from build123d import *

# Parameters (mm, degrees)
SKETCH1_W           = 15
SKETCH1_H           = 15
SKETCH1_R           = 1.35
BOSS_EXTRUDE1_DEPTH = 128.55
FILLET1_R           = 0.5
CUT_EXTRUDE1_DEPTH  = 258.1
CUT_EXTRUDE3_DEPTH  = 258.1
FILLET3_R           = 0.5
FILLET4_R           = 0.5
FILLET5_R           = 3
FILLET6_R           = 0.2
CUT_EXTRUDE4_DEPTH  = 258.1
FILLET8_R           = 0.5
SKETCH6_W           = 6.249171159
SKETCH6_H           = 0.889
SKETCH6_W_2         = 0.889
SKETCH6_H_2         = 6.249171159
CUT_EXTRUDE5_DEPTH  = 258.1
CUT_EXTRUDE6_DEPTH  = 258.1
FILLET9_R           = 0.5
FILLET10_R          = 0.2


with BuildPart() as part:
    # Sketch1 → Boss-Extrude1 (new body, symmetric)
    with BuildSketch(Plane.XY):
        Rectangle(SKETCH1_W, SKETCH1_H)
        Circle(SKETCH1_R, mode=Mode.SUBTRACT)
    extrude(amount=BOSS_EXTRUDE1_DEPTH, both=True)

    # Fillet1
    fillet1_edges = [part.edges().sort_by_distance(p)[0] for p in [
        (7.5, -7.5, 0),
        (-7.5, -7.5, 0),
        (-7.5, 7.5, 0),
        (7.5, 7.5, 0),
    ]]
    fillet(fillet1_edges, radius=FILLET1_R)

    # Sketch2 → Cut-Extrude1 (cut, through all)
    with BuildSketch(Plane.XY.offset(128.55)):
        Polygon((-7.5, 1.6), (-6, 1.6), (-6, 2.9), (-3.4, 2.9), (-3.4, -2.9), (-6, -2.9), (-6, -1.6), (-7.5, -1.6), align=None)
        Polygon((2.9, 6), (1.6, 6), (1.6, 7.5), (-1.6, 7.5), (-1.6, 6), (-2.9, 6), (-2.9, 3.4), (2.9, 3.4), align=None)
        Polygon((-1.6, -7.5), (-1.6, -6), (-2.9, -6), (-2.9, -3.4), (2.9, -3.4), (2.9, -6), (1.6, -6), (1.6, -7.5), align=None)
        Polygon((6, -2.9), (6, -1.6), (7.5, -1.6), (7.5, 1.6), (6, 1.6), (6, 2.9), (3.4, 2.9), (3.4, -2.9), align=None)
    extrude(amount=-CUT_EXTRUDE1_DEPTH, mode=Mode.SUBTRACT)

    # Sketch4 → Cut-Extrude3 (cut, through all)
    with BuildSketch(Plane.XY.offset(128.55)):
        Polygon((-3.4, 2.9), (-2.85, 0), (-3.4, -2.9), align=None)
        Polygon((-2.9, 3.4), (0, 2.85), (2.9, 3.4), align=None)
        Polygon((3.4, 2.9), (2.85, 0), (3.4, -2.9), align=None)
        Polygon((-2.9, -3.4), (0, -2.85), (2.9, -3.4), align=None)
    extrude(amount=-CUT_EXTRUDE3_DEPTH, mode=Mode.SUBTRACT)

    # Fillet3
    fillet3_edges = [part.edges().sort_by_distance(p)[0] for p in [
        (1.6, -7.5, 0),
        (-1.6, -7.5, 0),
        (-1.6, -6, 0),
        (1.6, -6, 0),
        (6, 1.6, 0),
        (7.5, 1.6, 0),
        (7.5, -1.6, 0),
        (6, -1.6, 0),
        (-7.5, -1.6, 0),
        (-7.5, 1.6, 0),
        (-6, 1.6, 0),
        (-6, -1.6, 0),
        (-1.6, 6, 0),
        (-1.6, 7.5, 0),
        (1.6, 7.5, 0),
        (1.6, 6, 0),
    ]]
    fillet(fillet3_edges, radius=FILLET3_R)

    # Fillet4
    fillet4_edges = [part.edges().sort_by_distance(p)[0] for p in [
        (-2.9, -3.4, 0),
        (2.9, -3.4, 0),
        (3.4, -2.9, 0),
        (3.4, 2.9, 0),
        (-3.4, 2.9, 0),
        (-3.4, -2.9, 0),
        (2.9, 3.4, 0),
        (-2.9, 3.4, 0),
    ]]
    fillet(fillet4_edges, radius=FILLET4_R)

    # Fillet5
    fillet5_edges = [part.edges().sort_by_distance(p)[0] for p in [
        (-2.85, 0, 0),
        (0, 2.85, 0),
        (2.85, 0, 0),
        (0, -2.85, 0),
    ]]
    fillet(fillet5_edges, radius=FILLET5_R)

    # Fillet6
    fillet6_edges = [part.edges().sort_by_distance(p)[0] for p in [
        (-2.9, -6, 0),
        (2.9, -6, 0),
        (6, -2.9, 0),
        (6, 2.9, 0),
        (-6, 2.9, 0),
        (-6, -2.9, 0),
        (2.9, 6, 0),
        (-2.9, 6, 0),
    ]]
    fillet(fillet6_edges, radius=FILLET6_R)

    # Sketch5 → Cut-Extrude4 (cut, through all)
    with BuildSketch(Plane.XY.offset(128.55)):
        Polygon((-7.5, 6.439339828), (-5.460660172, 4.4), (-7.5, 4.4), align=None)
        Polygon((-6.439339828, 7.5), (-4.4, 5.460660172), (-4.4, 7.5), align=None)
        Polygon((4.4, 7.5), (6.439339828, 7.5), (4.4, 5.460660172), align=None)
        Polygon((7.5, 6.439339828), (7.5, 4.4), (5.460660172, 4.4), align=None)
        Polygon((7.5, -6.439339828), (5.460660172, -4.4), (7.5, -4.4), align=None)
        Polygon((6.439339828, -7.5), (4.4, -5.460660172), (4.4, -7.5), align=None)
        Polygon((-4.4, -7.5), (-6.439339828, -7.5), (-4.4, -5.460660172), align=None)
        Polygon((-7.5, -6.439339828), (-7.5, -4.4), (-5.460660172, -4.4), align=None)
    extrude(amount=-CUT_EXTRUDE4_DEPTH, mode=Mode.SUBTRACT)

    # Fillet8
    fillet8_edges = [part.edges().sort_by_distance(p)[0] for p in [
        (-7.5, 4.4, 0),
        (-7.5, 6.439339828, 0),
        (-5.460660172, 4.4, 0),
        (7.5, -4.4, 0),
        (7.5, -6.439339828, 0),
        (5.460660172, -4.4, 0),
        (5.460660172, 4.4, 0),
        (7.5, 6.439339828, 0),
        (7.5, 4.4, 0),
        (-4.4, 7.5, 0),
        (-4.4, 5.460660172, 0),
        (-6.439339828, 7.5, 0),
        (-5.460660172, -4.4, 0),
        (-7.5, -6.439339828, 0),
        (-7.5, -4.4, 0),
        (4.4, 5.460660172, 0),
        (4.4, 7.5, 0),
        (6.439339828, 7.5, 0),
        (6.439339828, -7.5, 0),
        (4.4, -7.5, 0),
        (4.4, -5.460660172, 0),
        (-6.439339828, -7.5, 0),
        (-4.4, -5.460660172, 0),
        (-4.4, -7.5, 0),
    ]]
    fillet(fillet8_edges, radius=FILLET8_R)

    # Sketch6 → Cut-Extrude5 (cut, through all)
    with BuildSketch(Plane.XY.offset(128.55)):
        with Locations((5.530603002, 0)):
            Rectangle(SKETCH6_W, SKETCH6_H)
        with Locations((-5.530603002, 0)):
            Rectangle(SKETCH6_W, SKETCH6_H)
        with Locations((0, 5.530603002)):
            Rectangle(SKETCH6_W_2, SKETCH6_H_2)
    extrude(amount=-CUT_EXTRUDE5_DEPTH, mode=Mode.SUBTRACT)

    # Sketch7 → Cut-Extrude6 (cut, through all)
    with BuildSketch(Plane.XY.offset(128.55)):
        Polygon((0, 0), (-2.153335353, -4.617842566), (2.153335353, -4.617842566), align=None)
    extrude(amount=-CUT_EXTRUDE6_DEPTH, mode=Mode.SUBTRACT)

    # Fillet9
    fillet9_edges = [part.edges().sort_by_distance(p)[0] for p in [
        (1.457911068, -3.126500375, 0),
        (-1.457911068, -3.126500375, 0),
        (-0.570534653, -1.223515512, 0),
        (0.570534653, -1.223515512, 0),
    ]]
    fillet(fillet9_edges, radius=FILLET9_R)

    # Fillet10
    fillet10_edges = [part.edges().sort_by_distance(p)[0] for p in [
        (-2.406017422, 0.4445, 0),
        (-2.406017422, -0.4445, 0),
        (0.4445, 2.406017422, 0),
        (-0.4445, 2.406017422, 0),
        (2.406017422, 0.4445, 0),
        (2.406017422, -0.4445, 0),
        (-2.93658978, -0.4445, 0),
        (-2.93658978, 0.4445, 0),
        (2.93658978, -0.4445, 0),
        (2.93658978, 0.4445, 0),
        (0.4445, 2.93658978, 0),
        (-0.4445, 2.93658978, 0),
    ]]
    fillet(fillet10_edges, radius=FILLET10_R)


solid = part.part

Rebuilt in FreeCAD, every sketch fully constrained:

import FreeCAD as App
import Part
import Sketcher

V = App.Vector
Q = App.Units.Quantity


def edges_at(feature, points):
    """Names of the edges that pass closest to the given points."""
    edges = feature.Shape.Edges
    near = lambda p: min(range(len(edges)), key=lambda i: edges[i].distToShape(Part.Vertex(*p))[0])
    return sorted({f"Edge{near(p) + 1}" for p in points})


def add_polygon(sketch, points):
    """Adds a closed chain of lines whose ends are joined by coincident constraints."""
    first, n = sketch.GeometryCount, len(points)
    for a, b in zip(points, points[1:] + points[:1]):
        sketch.addGeometry(Part.LineSegment(App.Vector(*a, 0), App.Vector(*b, 0)), False)
    for i in range(n):
        sketch.addConstraint(Sketcher.Constraint("Coincident", first + i, 2, first + (i + 1) % n, 1))

doc = App.newDocument("Part")
body = doc.addObject("PartDesign::Body", "Body")

# Sketch on XY plane
sketch1 = body.newObject("Sketcher::SketchObject", "Sketch")
sketch1.AttachmentSupport = (doc.getObject("XY_Plane"), [""])
sketch1.MapMode = "FlatFace"
add_polygon(sketch1, [(-7.5, 7.5), (-7.5, -7.5), (7.5, -7.5), (7.5, 7.5)])  # lines 0-3
sketch1.addGeometry(Part.Circle(V(0, 0, 0), V(0, 0, 1), 1.4), False)  # 4
sketch1.addConstraint(Sketcher.Constraint("Vertical", 0))
sketch1.addConstraint(Sketcher.Constraint("Horizontal", 1))
sketch1.addConstraint(Sketcher.Constraint("Vertical", 2))
sketch1.addConstraint(Sketcher.Constraint("Horizontal", 3))
sketch1.addConstraint(Sketcher.Constraint("Coincident", 4, 3, -1, 1))
sketch1.addConstraint(Sketcher.Constraint("Symmetric", 0, 2, 2, 2, -1, 1))
sketch1.addConstraint(Sketcher.Constraint("Equal", 3, 0))
sketch1.addConstraint(Sketcher.Constraint("Diameter", 4, 2.7))
sketch1.addConstraint(Sketcher.Constraint("DistanceX", 1, 1, 1, 2, 15.0))
pad1 = body.newObject("PartDesign::Pad", "Pad")
pad1.Profile = sketch1
pad1.Length = 257.1
pad1.Midplane = True
doc.recompute()

fillet = body.newObject("PartDesign::Fillet", "Fillet")
fillet.Base = (pad1, edges_at(pad1, [
    (7.5, -7.5, 0),
    (-7.5, -7.5, 0),
    (-7.5, 7.5, 0),
    (7.5, 7.5, 0),
]))
fillet.Radius = 0.5

# Sketch on XY plane
sketch2 = body.newObject("Sketcher::SketchObject", "Sketch001")
sketch2.AttachmentSupport = (doc.getObject("XY_Plane"), [""])
sketch2.MapMode = "FlatFace"
sketch2.AttachmentOffset = App.Placement(V(0, 0, 128.55), App.Rotation())
add_polygon(sketch2, [(-6, 1.6), (-7.5, 1.6), (-7.5, -1.6), (-6, -1.6), (-6, -2.9), (-3.4, -2.9), (-3.4, 2.9), (-6, 2.9)])  # lines 0-7
add_polygon(sketch2, [(2.9, 6), (1.6, 6), (1.6, 7.5), (-1.6, 7.5), (-1.6, 6), (-2.9, 6), (-2.9, 3.4), (2.9, 3.4)])  # lines 8-15
add_polygon(sketch2, [(-1.6, -6), (-1.6, -7.5), (1.6, -7.5), (1.6, -6), (2.9, -6), (2.9, -3.4), (-2.9, -3.4), (-2.9, -6)])  # lines 16-23
add_polygon(sketch2, [(6, -2.9), (6, -1.6), (7.5, -1.6), (7.5, 1.6), (6, 1.6), (6, 2.9), (3.4, 2.9), (3.4, -2.9)])  # lines 24-31
sketch2.addConstraint(Sketcher.Constraint("Horizontal", 0))
sketch2.addConstraint(Sketcher.Constraint("Vertical", 1))
sketch2.addConstraint(Sketcher.Constraint("Horizontal", 2))
sketch2.addConstraint(Sketcher.Constraint("Vertical", 3))
sketch2.addConstraint(Sketcher.Constraint("Horizontal", 4))
sketch2.addConstraint(Sketcher.Constraint("Vertical", 5))
sketch2.addConstraint(Sketcher.Constraint("Horizontal", 6))
sketch2.addConstraint(Sketcher.Constraint("Vertical", 7))
sketch2.addConstraint(Sketcher.Constraint("Horizontal", 8))
sketch2.addConstraint(Sketcher.Constraint("Vertical", 9))
sketch2.addConstraint(Sketcher.Constraint("Horizontal", 10))
sketch2.addConstraint(Sketcher.Constraint("Vertical", 11))
sketch2.addConstraint(Sketcher.Constraint("Horizontal", 12))
sketch2.addConstraint(Sketcher.Constraint("Vertical", 13))
sketch2.addConstraint(Sketcher.Constraint("Horizontal", 14))
sketch2.addConstraint(Sketcher.Constraint("Vertical", 15))
sketch2.addConstraint(Sketcher.Constraint("Vertical", 16))
sketch2.addConstraint(Sketcher.Constraint("Horizontal", 17))
sketch2.addConstraint(Sketcher.Constraint("Vertical", 18))
sketch2.addConstraint(Sketcher.Constraint("Horizontal", 19))
sketch2.addConstraint(Sketcher.Constraint("Vertical", 20))
sketch2.addConstraint(Sketcher.Constraint("Horizontal", 21))
sketch2.addConstraint(Sketcher.Constraint("Vertical", 22))
sketch2.addConstraint(Sketcher.Constraint("Horizontal", 23))
sketch2.addConstraint(Sketcher.Constraint("Vertical", 24))
sketch2.addConstraint(Sketcher.Constraint("Horizontal", 25))
sketch2.addConstraint(Sketcher.Constraint("Vertical", 26))
sketch2.addConstraint(Sketcher.Constraint("Horizontal", 27))
sketch2.addConstraint(Sketcher.Constraint("Vertical", 28))
sketch2.addConstraint(Sketcher.Constraint("Horizontal", 29))
sketch2.addConstraint(Sketcher.Constraint("Vertical", 30))
sketch2.addConstraint(Sketcher.Constraint("Horizontal", 31))
sketch2.addConstraint(Sketcher.Constraint("Symmetric", 9, 2, 16, 2, -1, 1))
sketch2.addConstraint(Sketcher.Constraint("Symmetric", 11, 2, 18, 2, -1, 1))
sketch2.addConstraint(Sketcher.Constraint("Symmetric", 13, 2, 20, 2, -1, 1))
sketch2.addConstraint(Sketcher.Constraint("Symmetric", 15, 2, 22, 2, -1, 1))
sketch2.addConstraint(Sketcher.Constraint("Symmetric", 7, 2, 24, 2, -1, 1))
sketch2.addConstraint(Sketcher.Constraint("Symmetric", 1, 2, 26, 2, -1, 1))
sketch2.addConstraint(Sketcher.Constraint("Symmetric", 3, 2, 28, 2, -1, 1))
sketch2.addConstraint(Sketcher.Constraint("Symmetric", 5, 2, 30, 2, -1, 1))
sketch2.addConstraint(Sketcher.Constraint("Symmetric", 8, 2, 11, 2, -2))
sketch2.addConstraint(Sketcher.Constraint("Symmetric", 2, 2, 24, 2, -2))
sketch2.addConstraint(Sketcher.Constraint("Horizontal", 6, 2, 28, 2))
sketch2.addConstraint(Sketcher.Constraint("Vertical", 15, 2, 19, 2))
sketch2.addConstraint(Sketcher.Constraint("Equal", 17, 1))
sketch2.addConstraint(Sketcher.Constraint("Equal", 23, 3))
sketch2.addConstraint(Sketcher.Constraint("Equal", 27, 9))
sketch2.addConstraint(Sketcher.Constraint("Equal", 31, 13))
sketch2.addConstraint(Sketcher.Constraint("DistanceX", 0, 2, 0, 1, 1.5))
sketch2.addConstraint(Sketcher.Constraint("DistanceX", 4, 1, 4, 2, 2.6))
sketch2.addConstraint(Sketcher.Constraint("DistanceX", 8, 2, 8, 1, 1.3))
sketch2.addConstraint(Sketcher.Constraint("DistanceX", 10, 2, 10, 1, 3.2))
sketch2.addConstraint(Sketcher.Constraint("DistanceX", 2, 2, -1, 1, 6.0))
sketch2.addConstraint(Sketcher.Constraint("DistanceY", -1, 1, 8, 2, 6.0))
pocket1 = body.newObject("PartDesign::Pocket", "Pocket")
pocket1.Profile = sketch2
pocket1.Type = "ThroughAll"

# Sketch on XY plane
sketch3 = body.newObject("Sketcher::SketchObject", "Sketch002")
sketch3.AttachmentSupport = (doc.getObject("XY_Plane"), [""])
sketch3.MapMode = "FlatFace"
sketch3.AttachmentOffset = App.Placement(V(0, 0, 128.55), App.Rotation())
add_polygon(sketch3, [(-2.9, 0), (-3.4, 2.9), (-3.4, -2.9)])  # lines 0-2
add_polygon(sketch3, [(-2.9, 3.4), (0, 2.9), (2.9, 3.4)])  # lines 3-5
add_polygon(sketch3, [(3.4, 2.9), (2.9, 0), (3.4, -2.9)])  # lines 6-8
add_polygon(sketch3, [(0, -2.9), (-2.9, -3.4), (2.9, -3.4)])  # lines 9-11
sketch3.addConstraint(Sketcher.Constraint("Vertical", 1))
sketch3.addConstraint(Sketcher.Constraint("Horizontal", 5))
sketch3.addConstraint(Sketcher.Constraint("Vertical", 8))
sketch3.addConstraint(Sketcher.Constraint("Horizontal", 10))
sketch3.addConstraint(Sketcher.Constraint("Symmetric", 2, 2, 6, 2, -1, 1))
sketch3.addConstraint(Sketcher.Constraint("Symmetric", 0, 2, 7, 2, -1, 1))
sketch3.addConstraint(Sketcher.Constraint("Symmetric", 4, 2, 9, 2, -1, 1))
sketch3.addConstraint(Sketcher.Constraint("Symmetric", 3, 2, 11, 2, -1, 1))
sketch3.addConstraint(Sketcher.Constraint("PointOnObject", 2, 2, -1))
sketch3.addConstraint(Sketcher.Constraint("PointOnObject", 3, 2, -2))
sketch3.addConstraint(Sketcher.Constraint("Perpendicular", 2, 3))
sketch3.addConstraint(Sketcher.Constraint("Perpendicular", 0, 4))
sketch3.addConstraint(Sketcher.Constraint("Perpendicular", 3, 6))
sketch3.addConstraint(Sketcher.Constraint("Perpendicular", 6, 11))
sketch3.addConstraint(Sketcher.Constraint("Horizontal", 1, 2, 7, 2))
sketch3.addConstraint(Sketcher.Constraint("Equal", 10, 1))
sketch3.addConstraint(Sketcher.Constraint("DistanceX", 5, 2, 5, 1, 5.8))
sketch3.addConstraint(Sketcher.Constraint("DistanceX", 0, 2, -1, 1, 3.4))
sketch3.addConstraint(Sketcher.Constraint("DistanceY", -1, 1, 4, 2, 3.4))
sketch3.addConstraint(Sketcher.Constraint("DistanceX", 2, 2, 6, 2, 5.7))
pocket2 = body.newObject("PartDesign::Pocket", "Pocket001")
pocket2.Profile = sketch3
pocket2.Type = "ThroughAll"
doc.recompute()

fillet2 = body.newObject("PartDesign::Fillet", "Fillet001")
fillet2.Base = (pocket2, edges_at(pocket2, [
    (1.6, -7.5, 0),
    (-1.6, -7.5, 0),
    (-1.6, -6, 0),
    (1.6, -6, 0),
    (6, 1.6, 0),
    (7.5, 1.6, 0),
    (7.5, -1.6, 0),
    (6, -1.6, 0),
    (-7.5, -1.6, 0),
    (-7.5, 1.6, 0),
    (-6, 1.6, 0),
    (-6, -1.6, 0),
    (-1.6, 6, 0),
    (-1.6, 7.5, 0),
    (1.6, 7.5, 0),
    (1.6, 6, 0),
]))
fillet2.Radius = 0.5
doc.recompute()

fillet3 = body.newObject("PartDesign::Fillet", "Fillet002")
fillet3.Base = (fillet2, edges_at(fillet2, [
    (-2.9, -3.4, 0),
    (2.9, -3.4, 0),
    (3.4, -2.9, 0),
    (3.4, 2.9, 0),
    (-3.4, 2.9, 0),
    (-3.4, -2.9, 0),
    (2.9, 3.4, 0),
    (-2.9, 3.4, 0),
]))
fillet3.Radius = 0.5
doc.recompute()

fillet4 = body.newObject("PartDesign::Fillet", "Fillet003")
fillet4.Base = (fillet3, edges_at(fillet3, [
    (-2.85, 0, 0),
    (0, 2.85, 0),
    (2.85, 0, 0),
    (0, -2.85, 0),
]))
fillet4.Radius = 3
doc.recompute()

fillet5 = body.newObject("PartDesign::Fillet", "Fillet004")
fillet5.Base = (fillet4, edges_at(fillet4, [
    (-2.9, -6, 0),
    (2.9, -6, 0),
    (6, -2.9, 0),
    (6, 2.9, 0),
    (-6, 2.9, 0),
    (-6, -2.9, 0),
    (2.9, 6, 0),
    (-2.9, 6, 0),
]))
fillet5.Radius = 0.2

# Sketch on XY plane
sketch4 = body.newObject("Sketcher::SketchObject", "Sketch003")
sketch4.AttachmentSupport = (doc.getObject("XY_Plane"), [""])
sketch4.MapMode = "FlatFace"
sketch4.AttachmentOffset = App.Placement(V(0, 0, 128.55), App.Rotation())
add_polygon(sketch4, [(-5.5, 4.4), (-7.5, 6.4), (-7.5, 4.4)])  # lines 0-2
add_polygon(sketch4, [(-6.4, 7.5), (-4.4, 5.5), (-4.4, 7.5)])  # lines 3-5
add_polygon(sketch4, [(6.4, 7.5), (4.4, 7.5), (4.4, 5.5)])  # lines 6-8
add_polygon(sketch4, [(7.5, 4.4), (7.5, 6.4), (5.5, 4.4)])  # lines 9-11
add_polygon(sketch4, [(5.5, -4.4), (7.5, -6.4), (7.5, -4.4)])  # lines 12-14
add_polygon(sketch4, [(6.4, -7.5), (4.4, -5.5), (4.4, -7.5)])  # lines 15-17
add_polygon(sketch4, [(-6.4, -7.5), (-4.4, -7.5), (-4.4, -5.5)])  # lines 18-20
add_polygon(sketch4, [(-7.5, -4.4), (-7.5, -6.4), (-5.5, -4.4)])  # lines 21-23
sketch4.addConstraint(Sketcher.Constraint("Vertical", 1))
sketch4.addConstraint(Sketcher.Constraint("Horizontal", 2))
sketch4.addConstraint(Sketcher.Constraint("Vertical", 4))
sketch4.addConstraint(Sketcher.Constraint("Horizontal", 5))
sketch4.addConstraint(Sketcher.Constraint("Horizontal", 6))
sketch4.addConstraint(Sketcher.Constraint("Vertical", 7))
sketch4.addConstraint(Sketcher.Constraint("Vertical", 9))
sketch4.addConstraint(Sketcher.Constraint("Horizontal", 11))
sketch4.addConstraint(Sketcher.Constraint("Vertical", 13))
sketch4.addConstraint(Sketcher.Constraint("Horizontal", 14))
sketch4.addConstraint(Sketcher.Constraint("Vertical", 16))
sketch4.addConstraint(Sketcher.Constraint("Horizontal", 17))
sketch4.addConstraint(Sketcher.Constraint("Horizontal", 18))
sketch4.addConstraint(Sketcher.Constraint("Vertical", 19))
sketch4.addConstraint(Sketcher.Constraint("Vertical", 21))
sketch4.addConstraint(Sketcher.Constraint("Horizontal", 23))
sketch4.addConstraint(Sketcher.Constraint("Symmetric", 0, 2, 12, 2, -1, 1))
sketch4.addConstraint(Sketcher.Constraint("Symmetric", 2, 2, 14, 2, -1, 1))
sketch4.addConstraint(Sketcher.Constraint("Symmetric", 3, 2, 15, 2, -1, 1))
sketch4.addConstraint(Sketcher.Constraint("Symmetric", 5, 2, 17, 2, -1, 1))
sketch4.addConstraint(Sketcher.Constraint("Symmetric", 6, 2, 18, 2, -1, 1))
sketch4.addConstraint(Sketcher.Constraint("Symmetric", 9, 2, 21, 2, -1, 1))
sketch4.addConstraint(Sketcher.Constraint("Symmetric", 10, 2, 22, 2, -1, 1))
sketch4.addConstraint(Sketcher.Constraint("Symmetric", 4, 2, 6, 2, -2))
sketch4.addConstraint(Sketcher.Constraint("Symmetric", 0, 2, 9, 2, -2))
sketch4.addConstraint(Sketcher.Constraint("Symmetric", 2, 2, 10, 2, -2))
sketch4.addConstraint(Sketcher.Constraint("Parallel", 0, 3))
sketch4.addConstraint(Sketcher.Constraint("Perpendicular", 3, 8))
sketch4.addConstraint(Sketcher.Constraint("Parallel", 8, 10))
sketch4.addConstraint(Sketcher.Constraint("Perpendicular", 15, 20))
sketch4.addConstraint(Sketcher.Constraint("Horizontal", 3, 2, 7, 2))
sketch4.addConstraint(Sketcher.Constraint("Horizontal", 15, 2, 19, 2))
sketch4.addConstraint(Sketcher.Constraint("Equal", 2, 5))
sketch4.addConstraint(Sketcher.Constraint("DistanceX", 0, 2, -1, 1, 7.5))
sketch4.addConstraint(Sketcher.Constraint("DistanceY", -1, 1, 1, 2, 4.4))
sketch4.addConstraint(Sketcher.Constraint("DistanceX", 3, 2, -1, 1, 4.4))
sketch4.addConstraint(Sketcher.Constraint("DistanceY", -1, 1, 4, 2, 7.5))
sketch4.addConstraint(Sketcher.Constraint("DistanceX", 2, 1, 2, 2, 2.03934))
pocket3 = body.newObject("PartDesign::Pocket", "Pocket002")
pocket3.Profile = sketch4
pocket3.Type = "ThroughAll"
doc.recompute()

fillet6 = body.newObject("PartDesign::Fillet", "Fillet005")
fillet6.Base = (pocket3, edges_at(pocket3, [
    (-7.5, 4.4, 0),
    (-7.5, 6.439, 0),
    (-5.461, 4.4, 0),
    (7.5, -4.4, 0),
    (7.5, -6.439, 0),
    (5.461, -4.4, 0),
    (5.461, 4.4, 0),
    (7.5, 6.439, 0),
    (7.5, 4.4, 0),
    (-4.4, 7.5, 0),
    (-4.4, 5.461, 0),
    (-6.439, 7.5, 0),
    (-5.461, -4.4, 0),
    (-7.5, -6.439, 0),
    (-7.5, -4.4, 0),
    (4.4, 5.461, 0),
    (4.4, 7.5, 0),
    (6.439, 7.5, 0),
    (6.439, -7.5, 0),
    (4.4, -7.5, 0),
    (4.4, -5.461, 0),
    (-6.439, -7.5, 0),
    (-4.4, -5.461, 0),
    (-4.4, -7.5, 0),
]))
fillet6.Radius = 0.5

# Sketch on XY plane
sketch5 = body.newObject("Sketcher::SketchObject", "Sketch004")
sketch5.AttachmentSupport = (doc.getObject("XY_Plane"), [""])
sketch5.MapMode = "FlatFace"
sketch5.AttachmentOffset = App.Placement(V(0, 0, 128.55), App.Rotation())
add_polygon(sketch5, [(2.4, 0.4), (2.4, -0.4), (8.7, -0.4), (8.7, 0.4)])  # lines 0-3
add_polygon(sketch5, [(-8.7, 0.4), (-8.7, -0.4), (-2.4, -0.4), (-2.4, 0.4)])  # lines 4-7
add_polygon(sketch5, [(-0.4, 8.7), (-0.4, 2.4), (0.4, 2.4), (0.4, 8.7)])  # lines 8-11
sketch5.addConstraint(Sketcher.Constraint("Vertical", 0))
sketch5.addConstraint(Sketcher.Constraint("Horizontal", 1))
sketch5.addConstraint(Sketcher.Constraint("Vertical", 2))
sketch5.addConstraint(Sketcher.Constraint("Horizontal", 3))
sketch5.addConstraint(Sketcher.Constraint("Vertical", 4))
sketch5.addConstraint(Sketcher.Constraint("Horizontal", 5))
sketch5.addConstraint(Sketcher.Constraint("Vertical", 6))
sketch5.addConstraint(Sketcher.Constraint("Horizontal", 7))
sketch5.addConstraint(Sketcher.Constraint("Vertical", 8))
sketch5.addConstraint(Sketcher.Constraint("Horizontal", 9))
sketch5.addConstraint(Sketcher.Constraint("Vertical", 10))
sketch5.addConstraint(Sketcher.Constraint("Horizontal", 11))
sketch5.addConstraint(Sketcher.Constraint("Symmetric", 2, 2, 4, 2, -1, 1))
sketch5.addConstraint(Sketcher.Constraint("Symmetric", 0, 2, 6, 2, -1, 1))
sketch5.addConstraint(Sketcher.Constraint("Horizontal", 1, 2, 4, 2))
sketch5.addConstraint(Sketcher.Constraint("Equal", 11, 0))
sketch5.addConstraint(Sketcher.Constraint("Equal", 7, 8))
sketch5.addConstraint(Sketcher.Constraint("DistanceX", 9, 1, 9, 2, 0.889))
sketch5.addConstraint(Sketcher.Constraint("DistanceX", 1, 1, 1, 2, 6.249171))
sketch5.addConstraint(Sketcher.Constraint("DistanceX", 8, 2, -1, 1, 0.4445))
sketch5.addConstraint(Sketcher.Constraint("DistanceX", -1, 1, 1, 2, 8.655189))
sketch5.addConstraint(Sketcher.Constraint("DistanceY", -1, 1, 10, 2, 8.655189))
pocket4 = body.newObject("PartDesign::Pocket", "Pocket003")
pocket4.Profile = sketch5
pocket4.Type = "ThroughAll"

# Sketch on XY plane
sketch6 = body.newObject("Sketcher::SketchObject", "Sketch005")
sketch6.AttachmentSupport = (doc.getObject("XY_Plane"), [""])
sketch6.MapMode = "FlatFace"
sketch6.AttachmentOffset = App.Placement(V(0, 0, 128.55), App.Rotation())
add_polygon(sketch6, [(0, 0), (-2.2, -4.6), (2.2, -4.6)])  # lines 0-2
sketch6.addConstraint(Sketcher.Constraint("Horizontal", 1))
sketch6.addConstraint(Sketcher.Constraint("Coincident", 2, 2, -1, 1))
sketch6.addConstraint(Sketcher.Constraint("Equal", 0, 2))
sketch6.addConstraint(Sketcher.Constraint("Angle", 0, Q("-115 deg")))
sketch6.addConstraint(Sketcher.Constraint("DistanceX", 1, 1, 1, 2, 4.306671))
pocket5 = body.newObject("PartDesign::Pocket", "Pocket004")
pocket5.Profile = sketch6
pocket5.Type = "ThroughAll"
doc.recompute()

fillet7 = body.newObject("PartDesign::Fillet", "Fillet006")
fillet7.Base = (pocket5, edges_at(pocket5, [
    (1.458, -3.127, 0),
    (-1.458, -3.127, 0),
    (-0.571, -1.224, 0),
    (0.571, -1.224, 0),
]))
fillet7.Radius = 0.5
doc.recompute()

fillet8 = body.newObject("PartDesign::Fillet", "Fillet007")
fillet8.Base = (fillet7, edges_at(fillet7, [
    (-2.406, 0.445, 0),
    (-2.406, -0.445, 0),
    (0.445, 2.406, 0),
    (-0.445, 2.406, 0),
    (2.406, 0.445, 0),
    (2.406, -0.445, 0),
    (-2.937, -0.445, 0),
    (-2.937, 0.445, 0),
    (2.937, -0.445, 0),
    (2.937, 0.445, 0),
    (0.445, 2.937, 0),
    (-0.445, 2.937, 0),
]))
fillet8.Radius = 0.2

doc.recompute()
